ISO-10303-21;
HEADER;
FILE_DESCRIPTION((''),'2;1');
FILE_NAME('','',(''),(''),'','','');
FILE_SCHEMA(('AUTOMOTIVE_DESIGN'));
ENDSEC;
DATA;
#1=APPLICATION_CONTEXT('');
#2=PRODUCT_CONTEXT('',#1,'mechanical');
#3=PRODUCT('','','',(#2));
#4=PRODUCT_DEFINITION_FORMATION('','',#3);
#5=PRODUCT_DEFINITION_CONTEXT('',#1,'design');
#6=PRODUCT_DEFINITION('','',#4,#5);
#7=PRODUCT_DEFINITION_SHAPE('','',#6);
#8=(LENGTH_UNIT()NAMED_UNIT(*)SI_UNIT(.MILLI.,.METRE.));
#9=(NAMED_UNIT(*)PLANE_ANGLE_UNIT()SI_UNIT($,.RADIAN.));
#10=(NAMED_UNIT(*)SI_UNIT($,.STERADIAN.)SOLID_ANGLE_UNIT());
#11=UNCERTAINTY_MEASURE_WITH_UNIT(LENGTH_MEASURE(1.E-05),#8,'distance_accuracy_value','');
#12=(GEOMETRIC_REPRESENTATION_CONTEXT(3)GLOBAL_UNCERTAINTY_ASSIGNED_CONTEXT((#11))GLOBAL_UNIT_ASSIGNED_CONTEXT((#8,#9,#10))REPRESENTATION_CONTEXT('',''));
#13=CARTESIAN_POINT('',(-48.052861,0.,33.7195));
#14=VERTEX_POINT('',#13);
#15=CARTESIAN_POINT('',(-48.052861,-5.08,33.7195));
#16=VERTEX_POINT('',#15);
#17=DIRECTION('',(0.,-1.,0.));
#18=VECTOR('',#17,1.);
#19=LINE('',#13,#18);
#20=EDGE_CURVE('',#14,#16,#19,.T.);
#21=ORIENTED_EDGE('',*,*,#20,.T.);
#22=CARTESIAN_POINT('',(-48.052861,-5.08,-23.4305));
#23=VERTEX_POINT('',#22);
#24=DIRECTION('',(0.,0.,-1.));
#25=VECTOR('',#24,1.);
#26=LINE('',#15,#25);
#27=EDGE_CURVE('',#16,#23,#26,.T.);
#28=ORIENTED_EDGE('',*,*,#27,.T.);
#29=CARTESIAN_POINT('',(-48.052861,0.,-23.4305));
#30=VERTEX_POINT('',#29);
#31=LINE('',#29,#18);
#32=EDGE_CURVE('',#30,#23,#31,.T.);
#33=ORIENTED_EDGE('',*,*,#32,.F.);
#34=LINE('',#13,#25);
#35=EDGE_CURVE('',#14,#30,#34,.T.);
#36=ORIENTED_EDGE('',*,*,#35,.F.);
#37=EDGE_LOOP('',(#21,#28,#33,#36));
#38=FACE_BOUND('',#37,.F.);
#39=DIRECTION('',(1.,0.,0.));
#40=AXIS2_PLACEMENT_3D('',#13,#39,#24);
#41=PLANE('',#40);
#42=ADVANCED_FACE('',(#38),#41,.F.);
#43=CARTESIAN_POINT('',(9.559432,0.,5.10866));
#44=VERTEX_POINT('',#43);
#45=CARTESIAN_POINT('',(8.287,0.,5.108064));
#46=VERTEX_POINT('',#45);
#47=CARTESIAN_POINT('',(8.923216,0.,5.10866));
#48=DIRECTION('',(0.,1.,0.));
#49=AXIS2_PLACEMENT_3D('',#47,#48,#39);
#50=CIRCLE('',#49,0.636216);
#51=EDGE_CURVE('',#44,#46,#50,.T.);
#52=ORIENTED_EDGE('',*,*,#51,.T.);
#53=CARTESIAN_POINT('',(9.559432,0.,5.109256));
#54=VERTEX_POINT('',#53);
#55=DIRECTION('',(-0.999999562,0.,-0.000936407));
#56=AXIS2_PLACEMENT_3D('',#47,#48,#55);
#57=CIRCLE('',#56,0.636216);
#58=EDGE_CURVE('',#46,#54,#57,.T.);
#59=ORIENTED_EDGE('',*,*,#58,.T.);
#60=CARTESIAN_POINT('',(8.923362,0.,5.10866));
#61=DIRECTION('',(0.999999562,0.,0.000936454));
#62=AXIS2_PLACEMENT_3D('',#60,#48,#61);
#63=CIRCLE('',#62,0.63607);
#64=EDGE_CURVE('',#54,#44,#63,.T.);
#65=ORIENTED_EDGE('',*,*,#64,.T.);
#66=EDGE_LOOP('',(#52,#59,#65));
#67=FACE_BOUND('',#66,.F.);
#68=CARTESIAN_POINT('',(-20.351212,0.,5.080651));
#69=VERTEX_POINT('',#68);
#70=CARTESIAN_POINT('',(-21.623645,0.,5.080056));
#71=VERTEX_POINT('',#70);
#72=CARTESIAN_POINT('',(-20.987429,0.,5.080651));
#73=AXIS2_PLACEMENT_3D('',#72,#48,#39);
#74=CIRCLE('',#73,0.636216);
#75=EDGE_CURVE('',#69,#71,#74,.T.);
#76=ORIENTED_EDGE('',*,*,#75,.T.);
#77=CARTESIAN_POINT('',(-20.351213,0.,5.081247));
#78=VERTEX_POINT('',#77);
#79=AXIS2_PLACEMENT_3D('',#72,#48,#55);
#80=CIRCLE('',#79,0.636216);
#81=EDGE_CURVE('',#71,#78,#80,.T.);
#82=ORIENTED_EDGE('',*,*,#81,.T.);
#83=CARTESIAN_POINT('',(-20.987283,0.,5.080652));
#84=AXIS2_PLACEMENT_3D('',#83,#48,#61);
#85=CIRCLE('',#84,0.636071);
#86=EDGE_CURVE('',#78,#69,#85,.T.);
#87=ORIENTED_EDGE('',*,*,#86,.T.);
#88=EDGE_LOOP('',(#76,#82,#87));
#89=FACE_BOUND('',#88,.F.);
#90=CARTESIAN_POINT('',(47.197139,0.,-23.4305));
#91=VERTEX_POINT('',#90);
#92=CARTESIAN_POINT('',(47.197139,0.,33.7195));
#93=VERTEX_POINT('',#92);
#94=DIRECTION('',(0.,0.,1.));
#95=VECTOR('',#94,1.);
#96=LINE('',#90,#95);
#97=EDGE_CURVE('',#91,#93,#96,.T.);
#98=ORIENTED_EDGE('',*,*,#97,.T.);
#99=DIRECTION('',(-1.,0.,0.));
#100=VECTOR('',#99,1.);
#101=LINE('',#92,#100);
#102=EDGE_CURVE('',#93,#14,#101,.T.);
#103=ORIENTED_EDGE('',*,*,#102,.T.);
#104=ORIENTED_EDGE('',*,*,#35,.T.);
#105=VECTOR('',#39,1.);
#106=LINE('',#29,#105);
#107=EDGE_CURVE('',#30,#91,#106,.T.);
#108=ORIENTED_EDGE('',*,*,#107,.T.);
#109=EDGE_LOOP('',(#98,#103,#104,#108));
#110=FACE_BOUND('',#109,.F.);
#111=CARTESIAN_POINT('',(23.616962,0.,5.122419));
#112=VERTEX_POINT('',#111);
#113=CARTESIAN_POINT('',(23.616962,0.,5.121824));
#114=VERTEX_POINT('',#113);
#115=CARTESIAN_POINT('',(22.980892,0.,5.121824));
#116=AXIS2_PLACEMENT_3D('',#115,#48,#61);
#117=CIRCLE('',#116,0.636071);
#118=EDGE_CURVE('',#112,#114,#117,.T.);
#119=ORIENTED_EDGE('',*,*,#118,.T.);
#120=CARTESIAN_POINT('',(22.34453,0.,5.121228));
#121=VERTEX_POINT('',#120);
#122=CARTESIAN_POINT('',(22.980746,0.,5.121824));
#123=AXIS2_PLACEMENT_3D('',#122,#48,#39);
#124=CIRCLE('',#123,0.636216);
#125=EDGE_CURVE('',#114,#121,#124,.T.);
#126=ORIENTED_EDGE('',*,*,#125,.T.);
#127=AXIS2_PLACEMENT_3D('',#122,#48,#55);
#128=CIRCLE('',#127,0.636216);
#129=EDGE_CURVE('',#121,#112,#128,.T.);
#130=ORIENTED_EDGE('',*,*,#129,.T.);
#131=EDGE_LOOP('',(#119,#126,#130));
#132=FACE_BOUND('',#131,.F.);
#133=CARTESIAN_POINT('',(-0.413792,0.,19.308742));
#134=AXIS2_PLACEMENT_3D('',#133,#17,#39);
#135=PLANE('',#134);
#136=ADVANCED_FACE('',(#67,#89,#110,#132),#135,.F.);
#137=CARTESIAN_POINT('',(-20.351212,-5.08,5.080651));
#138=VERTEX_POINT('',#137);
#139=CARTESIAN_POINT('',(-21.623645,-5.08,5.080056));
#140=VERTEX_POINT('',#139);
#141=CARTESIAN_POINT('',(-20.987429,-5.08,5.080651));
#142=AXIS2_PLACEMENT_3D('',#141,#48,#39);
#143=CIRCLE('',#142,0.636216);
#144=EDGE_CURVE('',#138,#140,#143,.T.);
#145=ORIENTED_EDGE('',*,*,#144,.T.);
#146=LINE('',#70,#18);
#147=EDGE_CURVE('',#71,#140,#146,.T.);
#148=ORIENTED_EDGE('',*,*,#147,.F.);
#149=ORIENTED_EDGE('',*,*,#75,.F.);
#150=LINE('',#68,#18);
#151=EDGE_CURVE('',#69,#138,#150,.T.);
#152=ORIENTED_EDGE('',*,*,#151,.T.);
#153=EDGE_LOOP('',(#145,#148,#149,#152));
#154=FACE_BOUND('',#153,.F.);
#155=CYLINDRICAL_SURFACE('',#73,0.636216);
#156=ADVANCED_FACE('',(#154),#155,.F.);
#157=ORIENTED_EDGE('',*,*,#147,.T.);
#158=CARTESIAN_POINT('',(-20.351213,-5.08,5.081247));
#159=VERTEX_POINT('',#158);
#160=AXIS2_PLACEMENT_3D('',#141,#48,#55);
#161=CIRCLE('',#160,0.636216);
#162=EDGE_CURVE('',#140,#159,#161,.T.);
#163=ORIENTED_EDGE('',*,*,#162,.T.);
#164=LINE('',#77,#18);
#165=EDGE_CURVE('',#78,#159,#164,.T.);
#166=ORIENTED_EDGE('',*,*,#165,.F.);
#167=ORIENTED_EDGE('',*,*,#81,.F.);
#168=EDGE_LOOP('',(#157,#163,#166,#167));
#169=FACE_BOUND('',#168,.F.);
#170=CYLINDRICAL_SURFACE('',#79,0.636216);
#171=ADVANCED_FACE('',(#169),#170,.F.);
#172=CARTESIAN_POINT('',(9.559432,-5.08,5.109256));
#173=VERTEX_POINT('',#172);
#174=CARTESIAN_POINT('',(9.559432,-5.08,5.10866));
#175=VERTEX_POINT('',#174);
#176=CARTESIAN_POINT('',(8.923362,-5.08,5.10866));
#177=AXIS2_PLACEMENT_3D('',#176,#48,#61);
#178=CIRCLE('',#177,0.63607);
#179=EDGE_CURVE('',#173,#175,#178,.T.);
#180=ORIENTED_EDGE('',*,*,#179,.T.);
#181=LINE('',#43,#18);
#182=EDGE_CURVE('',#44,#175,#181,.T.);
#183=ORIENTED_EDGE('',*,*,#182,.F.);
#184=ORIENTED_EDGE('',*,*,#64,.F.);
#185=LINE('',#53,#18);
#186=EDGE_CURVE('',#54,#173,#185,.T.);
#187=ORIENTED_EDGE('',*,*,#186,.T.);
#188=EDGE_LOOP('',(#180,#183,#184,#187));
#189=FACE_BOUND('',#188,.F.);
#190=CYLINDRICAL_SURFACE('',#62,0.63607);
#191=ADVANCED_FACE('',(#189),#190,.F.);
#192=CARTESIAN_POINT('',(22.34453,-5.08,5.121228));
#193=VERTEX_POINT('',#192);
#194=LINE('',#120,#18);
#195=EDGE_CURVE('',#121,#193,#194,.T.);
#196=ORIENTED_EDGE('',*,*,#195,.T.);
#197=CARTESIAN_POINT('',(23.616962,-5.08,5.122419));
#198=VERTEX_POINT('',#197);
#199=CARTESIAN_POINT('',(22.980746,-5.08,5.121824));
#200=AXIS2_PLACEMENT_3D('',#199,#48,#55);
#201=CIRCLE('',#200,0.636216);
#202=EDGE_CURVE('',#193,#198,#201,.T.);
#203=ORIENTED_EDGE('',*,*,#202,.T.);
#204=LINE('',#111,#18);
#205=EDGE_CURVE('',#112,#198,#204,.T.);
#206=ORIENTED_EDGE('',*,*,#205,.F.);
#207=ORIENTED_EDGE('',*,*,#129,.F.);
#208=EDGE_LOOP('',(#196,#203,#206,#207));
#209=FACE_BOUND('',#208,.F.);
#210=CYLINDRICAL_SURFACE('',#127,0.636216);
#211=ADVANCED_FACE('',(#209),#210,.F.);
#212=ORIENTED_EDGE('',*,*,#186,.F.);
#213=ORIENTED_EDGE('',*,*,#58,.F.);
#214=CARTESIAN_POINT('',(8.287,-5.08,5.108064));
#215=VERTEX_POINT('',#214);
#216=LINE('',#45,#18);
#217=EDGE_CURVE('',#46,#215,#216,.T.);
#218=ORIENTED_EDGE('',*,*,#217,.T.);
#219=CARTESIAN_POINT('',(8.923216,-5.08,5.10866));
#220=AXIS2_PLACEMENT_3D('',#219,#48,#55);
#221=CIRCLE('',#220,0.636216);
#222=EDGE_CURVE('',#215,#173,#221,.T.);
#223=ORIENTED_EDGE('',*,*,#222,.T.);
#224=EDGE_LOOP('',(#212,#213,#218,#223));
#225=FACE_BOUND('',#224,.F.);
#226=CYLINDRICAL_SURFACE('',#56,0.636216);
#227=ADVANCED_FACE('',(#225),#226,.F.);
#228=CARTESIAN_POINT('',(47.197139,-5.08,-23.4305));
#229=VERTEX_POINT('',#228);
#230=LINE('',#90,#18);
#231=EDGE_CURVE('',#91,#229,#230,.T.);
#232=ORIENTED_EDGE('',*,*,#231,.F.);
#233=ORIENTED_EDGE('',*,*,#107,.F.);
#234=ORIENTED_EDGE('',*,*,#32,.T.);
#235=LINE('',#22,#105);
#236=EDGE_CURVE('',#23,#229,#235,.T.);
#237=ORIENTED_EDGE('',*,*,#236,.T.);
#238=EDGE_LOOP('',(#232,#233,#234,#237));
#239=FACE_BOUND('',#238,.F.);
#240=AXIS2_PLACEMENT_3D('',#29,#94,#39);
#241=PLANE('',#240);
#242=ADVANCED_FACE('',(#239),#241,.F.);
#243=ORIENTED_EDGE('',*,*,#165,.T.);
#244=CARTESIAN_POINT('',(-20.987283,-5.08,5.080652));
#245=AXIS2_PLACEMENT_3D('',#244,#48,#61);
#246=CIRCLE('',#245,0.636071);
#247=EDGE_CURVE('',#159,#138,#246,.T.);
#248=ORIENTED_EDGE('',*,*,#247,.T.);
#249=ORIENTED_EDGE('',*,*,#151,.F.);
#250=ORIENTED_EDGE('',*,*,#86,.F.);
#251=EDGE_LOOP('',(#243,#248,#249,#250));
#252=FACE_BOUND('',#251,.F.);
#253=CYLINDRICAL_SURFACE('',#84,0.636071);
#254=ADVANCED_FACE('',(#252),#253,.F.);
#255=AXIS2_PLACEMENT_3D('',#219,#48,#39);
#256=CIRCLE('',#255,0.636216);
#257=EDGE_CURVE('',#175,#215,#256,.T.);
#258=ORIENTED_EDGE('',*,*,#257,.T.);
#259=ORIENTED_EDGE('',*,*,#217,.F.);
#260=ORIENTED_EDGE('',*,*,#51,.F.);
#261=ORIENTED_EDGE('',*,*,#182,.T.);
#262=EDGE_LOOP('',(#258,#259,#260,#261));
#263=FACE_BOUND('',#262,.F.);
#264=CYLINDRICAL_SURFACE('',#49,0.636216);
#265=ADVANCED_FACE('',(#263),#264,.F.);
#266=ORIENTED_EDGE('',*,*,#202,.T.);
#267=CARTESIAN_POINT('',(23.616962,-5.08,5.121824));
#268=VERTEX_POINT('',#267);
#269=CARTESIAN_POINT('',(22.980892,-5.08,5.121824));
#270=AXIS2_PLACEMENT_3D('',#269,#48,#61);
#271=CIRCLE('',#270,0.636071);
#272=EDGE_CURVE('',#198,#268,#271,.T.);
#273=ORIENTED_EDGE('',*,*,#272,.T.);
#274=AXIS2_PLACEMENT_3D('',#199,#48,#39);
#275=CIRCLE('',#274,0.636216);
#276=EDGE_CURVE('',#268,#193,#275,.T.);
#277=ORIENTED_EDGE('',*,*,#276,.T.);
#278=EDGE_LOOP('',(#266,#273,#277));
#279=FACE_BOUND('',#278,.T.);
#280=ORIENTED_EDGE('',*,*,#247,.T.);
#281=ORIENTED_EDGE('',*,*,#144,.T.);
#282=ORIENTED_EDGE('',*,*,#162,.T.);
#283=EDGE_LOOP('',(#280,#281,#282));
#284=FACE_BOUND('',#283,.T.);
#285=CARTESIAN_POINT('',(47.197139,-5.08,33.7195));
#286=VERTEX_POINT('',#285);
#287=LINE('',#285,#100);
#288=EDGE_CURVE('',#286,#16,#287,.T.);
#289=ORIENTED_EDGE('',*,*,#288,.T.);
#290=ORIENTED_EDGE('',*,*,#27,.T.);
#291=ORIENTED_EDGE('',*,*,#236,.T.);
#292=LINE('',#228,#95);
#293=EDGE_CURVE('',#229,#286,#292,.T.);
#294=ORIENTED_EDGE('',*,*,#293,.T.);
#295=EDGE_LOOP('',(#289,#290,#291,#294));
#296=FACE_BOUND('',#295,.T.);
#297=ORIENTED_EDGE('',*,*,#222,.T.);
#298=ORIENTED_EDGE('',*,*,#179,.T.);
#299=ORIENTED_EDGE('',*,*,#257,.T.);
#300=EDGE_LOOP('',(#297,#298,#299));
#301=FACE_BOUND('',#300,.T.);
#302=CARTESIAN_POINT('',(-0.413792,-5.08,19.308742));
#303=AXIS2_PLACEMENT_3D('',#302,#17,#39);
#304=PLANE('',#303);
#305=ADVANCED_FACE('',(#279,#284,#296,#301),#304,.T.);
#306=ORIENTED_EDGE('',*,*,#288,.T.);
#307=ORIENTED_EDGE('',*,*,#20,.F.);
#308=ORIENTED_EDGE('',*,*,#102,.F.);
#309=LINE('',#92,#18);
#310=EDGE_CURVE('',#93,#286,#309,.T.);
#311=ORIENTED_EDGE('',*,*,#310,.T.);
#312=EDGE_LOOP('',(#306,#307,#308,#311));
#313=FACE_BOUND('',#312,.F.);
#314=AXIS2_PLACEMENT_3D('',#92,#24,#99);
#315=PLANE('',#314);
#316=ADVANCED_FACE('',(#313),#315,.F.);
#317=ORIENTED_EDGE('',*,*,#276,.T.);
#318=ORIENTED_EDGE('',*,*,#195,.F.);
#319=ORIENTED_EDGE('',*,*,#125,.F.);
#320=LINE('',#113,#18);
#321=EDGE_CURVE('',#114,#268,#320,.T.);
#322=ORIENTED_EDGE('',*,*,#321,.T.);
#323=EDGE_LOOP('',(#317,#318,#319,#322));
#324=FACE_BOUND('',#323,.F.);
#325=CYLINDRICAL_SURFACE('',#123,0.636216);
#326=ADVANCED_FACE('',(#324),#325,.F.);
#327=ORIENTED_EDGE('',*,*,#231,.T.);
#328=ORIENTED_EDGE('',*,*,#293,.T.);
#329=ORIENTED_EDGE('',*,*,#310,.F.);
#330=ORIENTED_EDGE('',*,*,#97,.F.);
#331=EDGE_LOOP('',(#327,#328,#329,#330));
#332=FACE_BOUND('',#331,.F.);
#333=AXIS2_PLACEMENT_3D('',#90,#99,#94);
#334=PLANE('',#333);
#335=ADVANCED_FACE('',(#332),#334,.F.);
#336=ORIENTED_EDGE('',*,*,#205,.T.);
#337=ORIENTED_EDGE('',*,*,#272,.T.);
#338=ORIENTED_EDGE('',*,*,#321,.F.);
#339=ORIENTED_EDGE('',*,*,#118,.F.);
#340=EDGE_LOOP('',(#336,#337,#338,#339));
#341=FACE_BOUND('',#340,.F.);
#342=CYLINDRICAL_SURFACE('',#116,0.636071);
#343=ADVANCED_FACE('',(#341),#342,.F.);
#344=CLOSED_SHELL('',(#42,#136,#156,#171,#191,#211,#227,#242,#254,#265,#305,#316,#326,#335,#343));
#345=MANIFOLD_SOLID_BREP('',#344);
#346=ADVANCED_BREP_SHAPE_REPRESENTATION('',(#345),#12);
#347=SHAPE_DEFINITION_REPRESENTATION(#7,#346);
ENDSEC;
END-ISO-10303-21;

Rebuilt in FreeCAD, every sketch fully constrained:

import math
import FreeCAD as App
import Part
import Sketcher
Q = App.Units.Quantity


def add_polygon(sketch, points):
    """Adds a closed chain of lines whose ends are joined by coincident constraints."""
    first, n = sketch.GeometryCount, len(points)
    for a, b in zip(points, points[1:] + points[:1]):
        sketch.addGeometry(Part.LineSegment(App.Vector(*a, 0), App.Vector(*b, 0)), False)
    for i in range(n):
        sketch.addConstraint(Sketcher.Constraint("Coincident", first + i, 2, first + (i + 1) % n, 1))

doc = App.newDocument("Part")
body = doc.addObject("PartDesign::Body", "Body")

sketch1 = doc.addObject("Sketcher::SketchObject", "Sketch")
body.addObject(sketch1)
sketch1.AttachmentSupport = (doc.XZ_Plane, [""])
sketch1.MapMode = "FlatFace"
add_polygon(sketch1, [(-48.052861, 33.7195), (-48.052861, -23.4305), (47.197139, -23.4305), (47.197139, 33.7195)])
sketch1.addGeometry(Part.ArcOfCircle(Part.Circle(App.Vector(-20.987429, 5.080651, 0), App.Vector(0, 0, 1), 0.636216), math.radians(0.053652), math.radians(180.053652)), False)
sketch1.addGeometry(Part.ArcOfCircle(Part.Circle(App.Vector(-20.987283, 5.080652, 0), App.Vector(0, 0, 1), 0.636071), math.radians(-0.00001), math.radians(0.053655)), False)
sketch1.addGeometry(Part.ArcOfCircle(Part.Circle(App.Vector(-20.987429, 5.080651, 0), App.Vector(0, 0, 1), 0.636216), math.radians(-179.946348), math.radians(0)), False)
sketch1.addGeometry(Part.ArcOfCircle(Part.Circle(App.Vector(8.923216, 5.10866, 0), App.Vector(0, 0, 1), 0.636216), math.radians(0.053652), math.radians(180.053652)), False)
sketch1.addGeometry(Part.ArcOfCircle(Part.Circle(App.Vector(8.923362, 5.10866, 0), App.Vector(0, 0, 1), 0.63607), math.radians(-0.00001), math.radians(0.053655)), False)
sketch1.addGeometry(Part.ArcOfCircle(Part.Circle(App.Vector(8.923216, 5.10866, 0), App.Vector(0, 0, 1), 0.636216), math.radians(-179.946348), math.radians(0)), False)
sketch1.addGeometry(Part.ArcOfCircle(Part.Circle(App.Vector(22.980746, 5.121824, 0), App.Vector(0, 0, 1), 0.636216), math.radians(0.053652), math.radians(180.053652)), False)
sketch1.addGeometry(Part.ArcOfCircle(Part.Circle(App.Vector(22.980892, 5.121824, 0), App.Vector(0, 0, 1), 0.636071), math.radians(-0.00001), math.radians(0.053655)), False)
sketch1.addGeometry(Part.ArcOfCircle(Part.Circle(App.Vector(22.980746, 5.121824, 0), App.Vector(0, 0, 1), 0.636216), math.radians(-179.946348), math.radians(0)), False)
sketch1.addConstraint([
    Sketcher.Constraint("Tangent", 4, 1, 5, 2),
    Sketcher.Constraint("Tangent", 5, 1, 6, 2),
    Sketcher.Constraint("Coincident", 6, 1, 4, 2),
    Sketcher.Constraint("Tangent", 7, 1, 8, 2),
    Sketcher.Constraint("Tangent", 8, 1, 9, 2),
    Sketcher.Constraint("Coincident", 9, 1, 7, 2),
    Sketcher.Constraint("Tangent", 10, 1, 11, 2),
    Sketcher.Constraint("Tangent", 11, 1, 12, 2),
    Sketcher.Constraint("Coincident", 12, 1, 10, 2),
    Sketcher.Constraint("Vertical", 0),
    Sketcher.Constraint("Horizontal", 1),
    Sketcher.Constraint("Vertical", 2),
    Sketcher.Constraint("Horizontal", 3),
    Sketcher.Constraint("Equal", 6, 7),
    Sketcher.Constraint("Equal", 5, 8),
    Sketcher.Constraint("Equal", 9, 10),
    Sketcher.Constraint("Equal", 8, 11),
    Sketcher.Constraint("Horizontal", 6, 3, 5, 1),
    Sketcher.Constraint("Horizontal", 9, 3, 8, 1),
    Sketcher.Constraint("Horizontal", 12, 3, 11, 1),
    Sketcher.Constraint("DistanceX", 1, 1, 1, 2, Q("3.75 in")),
    Sketcher.Constraint("DistanceY", 0, 2, 0, 1, Q("2.25 in")),
    Sketcher.Constraint("Radius", 5, Q("0.636071 mm")),
    Sketcher.Constraint("Radius", 4, Q("0.636216 mm")),
    Sketcher.Constraint("DistanceY", 0, 2, -1, 1, Q("23.4305 mm")),
    Sketcher.Constraint("DistanceX", -1, 1, 9, 1, Q("8.287 mm")),
    Sketcher.Constraint("DistanceX", 5, 3, 7, 3, Q("29.910499 mm")),
    Sketcher.Constraint("DistanceY", -1, 1, 4, 3, Q("5.080651 mm")),
    Sketcher.Constraint("DistanceY", -1, 1, 7, 3, Q("5.10866 mm")),
    Sketcher.Constraint("DistanceX", -1, 1, 11, 3, Q("22.980892 mm")),
    Sketcher.Constraint("DistanceX", 0, 2, -1, 1, Q("48.052861 mm")),
    Sketcher.Constraint("DistanceY", -1, 1, 10, 1, Q("5.122419 mm")),
    Sketcher.Constraint("DistanceY", 6, 1, 4, 1, Q("0.001192 mm")),
    Sketcher.Constraint("DistanceY", 9, 1, 7, 1, Q("0.001192 mm")),
    Sketcher.Constraint("DistanceY", 12, 1, 10, 1, Q("0.001192 mm")),
    Sketcher.Constraint("DistanceY", -1, 1, 10, 3, Q("5.121824 mm")),
    Sketcher.Constraint("DistanceY", -1, 1, 4, 1, Q("5.081247 mm")),
    Sketcher.Constraint("DistanceY", -1, 1, 7, 1, Q("5.109256 mm")),
])
pad1 = doc.addObject("PartDesign::Pad", "Pad")
body.addObject(pad1)
pad1.Profile = sketch1
pad1.Length = Q("0.2 in")

doc.recompute()
